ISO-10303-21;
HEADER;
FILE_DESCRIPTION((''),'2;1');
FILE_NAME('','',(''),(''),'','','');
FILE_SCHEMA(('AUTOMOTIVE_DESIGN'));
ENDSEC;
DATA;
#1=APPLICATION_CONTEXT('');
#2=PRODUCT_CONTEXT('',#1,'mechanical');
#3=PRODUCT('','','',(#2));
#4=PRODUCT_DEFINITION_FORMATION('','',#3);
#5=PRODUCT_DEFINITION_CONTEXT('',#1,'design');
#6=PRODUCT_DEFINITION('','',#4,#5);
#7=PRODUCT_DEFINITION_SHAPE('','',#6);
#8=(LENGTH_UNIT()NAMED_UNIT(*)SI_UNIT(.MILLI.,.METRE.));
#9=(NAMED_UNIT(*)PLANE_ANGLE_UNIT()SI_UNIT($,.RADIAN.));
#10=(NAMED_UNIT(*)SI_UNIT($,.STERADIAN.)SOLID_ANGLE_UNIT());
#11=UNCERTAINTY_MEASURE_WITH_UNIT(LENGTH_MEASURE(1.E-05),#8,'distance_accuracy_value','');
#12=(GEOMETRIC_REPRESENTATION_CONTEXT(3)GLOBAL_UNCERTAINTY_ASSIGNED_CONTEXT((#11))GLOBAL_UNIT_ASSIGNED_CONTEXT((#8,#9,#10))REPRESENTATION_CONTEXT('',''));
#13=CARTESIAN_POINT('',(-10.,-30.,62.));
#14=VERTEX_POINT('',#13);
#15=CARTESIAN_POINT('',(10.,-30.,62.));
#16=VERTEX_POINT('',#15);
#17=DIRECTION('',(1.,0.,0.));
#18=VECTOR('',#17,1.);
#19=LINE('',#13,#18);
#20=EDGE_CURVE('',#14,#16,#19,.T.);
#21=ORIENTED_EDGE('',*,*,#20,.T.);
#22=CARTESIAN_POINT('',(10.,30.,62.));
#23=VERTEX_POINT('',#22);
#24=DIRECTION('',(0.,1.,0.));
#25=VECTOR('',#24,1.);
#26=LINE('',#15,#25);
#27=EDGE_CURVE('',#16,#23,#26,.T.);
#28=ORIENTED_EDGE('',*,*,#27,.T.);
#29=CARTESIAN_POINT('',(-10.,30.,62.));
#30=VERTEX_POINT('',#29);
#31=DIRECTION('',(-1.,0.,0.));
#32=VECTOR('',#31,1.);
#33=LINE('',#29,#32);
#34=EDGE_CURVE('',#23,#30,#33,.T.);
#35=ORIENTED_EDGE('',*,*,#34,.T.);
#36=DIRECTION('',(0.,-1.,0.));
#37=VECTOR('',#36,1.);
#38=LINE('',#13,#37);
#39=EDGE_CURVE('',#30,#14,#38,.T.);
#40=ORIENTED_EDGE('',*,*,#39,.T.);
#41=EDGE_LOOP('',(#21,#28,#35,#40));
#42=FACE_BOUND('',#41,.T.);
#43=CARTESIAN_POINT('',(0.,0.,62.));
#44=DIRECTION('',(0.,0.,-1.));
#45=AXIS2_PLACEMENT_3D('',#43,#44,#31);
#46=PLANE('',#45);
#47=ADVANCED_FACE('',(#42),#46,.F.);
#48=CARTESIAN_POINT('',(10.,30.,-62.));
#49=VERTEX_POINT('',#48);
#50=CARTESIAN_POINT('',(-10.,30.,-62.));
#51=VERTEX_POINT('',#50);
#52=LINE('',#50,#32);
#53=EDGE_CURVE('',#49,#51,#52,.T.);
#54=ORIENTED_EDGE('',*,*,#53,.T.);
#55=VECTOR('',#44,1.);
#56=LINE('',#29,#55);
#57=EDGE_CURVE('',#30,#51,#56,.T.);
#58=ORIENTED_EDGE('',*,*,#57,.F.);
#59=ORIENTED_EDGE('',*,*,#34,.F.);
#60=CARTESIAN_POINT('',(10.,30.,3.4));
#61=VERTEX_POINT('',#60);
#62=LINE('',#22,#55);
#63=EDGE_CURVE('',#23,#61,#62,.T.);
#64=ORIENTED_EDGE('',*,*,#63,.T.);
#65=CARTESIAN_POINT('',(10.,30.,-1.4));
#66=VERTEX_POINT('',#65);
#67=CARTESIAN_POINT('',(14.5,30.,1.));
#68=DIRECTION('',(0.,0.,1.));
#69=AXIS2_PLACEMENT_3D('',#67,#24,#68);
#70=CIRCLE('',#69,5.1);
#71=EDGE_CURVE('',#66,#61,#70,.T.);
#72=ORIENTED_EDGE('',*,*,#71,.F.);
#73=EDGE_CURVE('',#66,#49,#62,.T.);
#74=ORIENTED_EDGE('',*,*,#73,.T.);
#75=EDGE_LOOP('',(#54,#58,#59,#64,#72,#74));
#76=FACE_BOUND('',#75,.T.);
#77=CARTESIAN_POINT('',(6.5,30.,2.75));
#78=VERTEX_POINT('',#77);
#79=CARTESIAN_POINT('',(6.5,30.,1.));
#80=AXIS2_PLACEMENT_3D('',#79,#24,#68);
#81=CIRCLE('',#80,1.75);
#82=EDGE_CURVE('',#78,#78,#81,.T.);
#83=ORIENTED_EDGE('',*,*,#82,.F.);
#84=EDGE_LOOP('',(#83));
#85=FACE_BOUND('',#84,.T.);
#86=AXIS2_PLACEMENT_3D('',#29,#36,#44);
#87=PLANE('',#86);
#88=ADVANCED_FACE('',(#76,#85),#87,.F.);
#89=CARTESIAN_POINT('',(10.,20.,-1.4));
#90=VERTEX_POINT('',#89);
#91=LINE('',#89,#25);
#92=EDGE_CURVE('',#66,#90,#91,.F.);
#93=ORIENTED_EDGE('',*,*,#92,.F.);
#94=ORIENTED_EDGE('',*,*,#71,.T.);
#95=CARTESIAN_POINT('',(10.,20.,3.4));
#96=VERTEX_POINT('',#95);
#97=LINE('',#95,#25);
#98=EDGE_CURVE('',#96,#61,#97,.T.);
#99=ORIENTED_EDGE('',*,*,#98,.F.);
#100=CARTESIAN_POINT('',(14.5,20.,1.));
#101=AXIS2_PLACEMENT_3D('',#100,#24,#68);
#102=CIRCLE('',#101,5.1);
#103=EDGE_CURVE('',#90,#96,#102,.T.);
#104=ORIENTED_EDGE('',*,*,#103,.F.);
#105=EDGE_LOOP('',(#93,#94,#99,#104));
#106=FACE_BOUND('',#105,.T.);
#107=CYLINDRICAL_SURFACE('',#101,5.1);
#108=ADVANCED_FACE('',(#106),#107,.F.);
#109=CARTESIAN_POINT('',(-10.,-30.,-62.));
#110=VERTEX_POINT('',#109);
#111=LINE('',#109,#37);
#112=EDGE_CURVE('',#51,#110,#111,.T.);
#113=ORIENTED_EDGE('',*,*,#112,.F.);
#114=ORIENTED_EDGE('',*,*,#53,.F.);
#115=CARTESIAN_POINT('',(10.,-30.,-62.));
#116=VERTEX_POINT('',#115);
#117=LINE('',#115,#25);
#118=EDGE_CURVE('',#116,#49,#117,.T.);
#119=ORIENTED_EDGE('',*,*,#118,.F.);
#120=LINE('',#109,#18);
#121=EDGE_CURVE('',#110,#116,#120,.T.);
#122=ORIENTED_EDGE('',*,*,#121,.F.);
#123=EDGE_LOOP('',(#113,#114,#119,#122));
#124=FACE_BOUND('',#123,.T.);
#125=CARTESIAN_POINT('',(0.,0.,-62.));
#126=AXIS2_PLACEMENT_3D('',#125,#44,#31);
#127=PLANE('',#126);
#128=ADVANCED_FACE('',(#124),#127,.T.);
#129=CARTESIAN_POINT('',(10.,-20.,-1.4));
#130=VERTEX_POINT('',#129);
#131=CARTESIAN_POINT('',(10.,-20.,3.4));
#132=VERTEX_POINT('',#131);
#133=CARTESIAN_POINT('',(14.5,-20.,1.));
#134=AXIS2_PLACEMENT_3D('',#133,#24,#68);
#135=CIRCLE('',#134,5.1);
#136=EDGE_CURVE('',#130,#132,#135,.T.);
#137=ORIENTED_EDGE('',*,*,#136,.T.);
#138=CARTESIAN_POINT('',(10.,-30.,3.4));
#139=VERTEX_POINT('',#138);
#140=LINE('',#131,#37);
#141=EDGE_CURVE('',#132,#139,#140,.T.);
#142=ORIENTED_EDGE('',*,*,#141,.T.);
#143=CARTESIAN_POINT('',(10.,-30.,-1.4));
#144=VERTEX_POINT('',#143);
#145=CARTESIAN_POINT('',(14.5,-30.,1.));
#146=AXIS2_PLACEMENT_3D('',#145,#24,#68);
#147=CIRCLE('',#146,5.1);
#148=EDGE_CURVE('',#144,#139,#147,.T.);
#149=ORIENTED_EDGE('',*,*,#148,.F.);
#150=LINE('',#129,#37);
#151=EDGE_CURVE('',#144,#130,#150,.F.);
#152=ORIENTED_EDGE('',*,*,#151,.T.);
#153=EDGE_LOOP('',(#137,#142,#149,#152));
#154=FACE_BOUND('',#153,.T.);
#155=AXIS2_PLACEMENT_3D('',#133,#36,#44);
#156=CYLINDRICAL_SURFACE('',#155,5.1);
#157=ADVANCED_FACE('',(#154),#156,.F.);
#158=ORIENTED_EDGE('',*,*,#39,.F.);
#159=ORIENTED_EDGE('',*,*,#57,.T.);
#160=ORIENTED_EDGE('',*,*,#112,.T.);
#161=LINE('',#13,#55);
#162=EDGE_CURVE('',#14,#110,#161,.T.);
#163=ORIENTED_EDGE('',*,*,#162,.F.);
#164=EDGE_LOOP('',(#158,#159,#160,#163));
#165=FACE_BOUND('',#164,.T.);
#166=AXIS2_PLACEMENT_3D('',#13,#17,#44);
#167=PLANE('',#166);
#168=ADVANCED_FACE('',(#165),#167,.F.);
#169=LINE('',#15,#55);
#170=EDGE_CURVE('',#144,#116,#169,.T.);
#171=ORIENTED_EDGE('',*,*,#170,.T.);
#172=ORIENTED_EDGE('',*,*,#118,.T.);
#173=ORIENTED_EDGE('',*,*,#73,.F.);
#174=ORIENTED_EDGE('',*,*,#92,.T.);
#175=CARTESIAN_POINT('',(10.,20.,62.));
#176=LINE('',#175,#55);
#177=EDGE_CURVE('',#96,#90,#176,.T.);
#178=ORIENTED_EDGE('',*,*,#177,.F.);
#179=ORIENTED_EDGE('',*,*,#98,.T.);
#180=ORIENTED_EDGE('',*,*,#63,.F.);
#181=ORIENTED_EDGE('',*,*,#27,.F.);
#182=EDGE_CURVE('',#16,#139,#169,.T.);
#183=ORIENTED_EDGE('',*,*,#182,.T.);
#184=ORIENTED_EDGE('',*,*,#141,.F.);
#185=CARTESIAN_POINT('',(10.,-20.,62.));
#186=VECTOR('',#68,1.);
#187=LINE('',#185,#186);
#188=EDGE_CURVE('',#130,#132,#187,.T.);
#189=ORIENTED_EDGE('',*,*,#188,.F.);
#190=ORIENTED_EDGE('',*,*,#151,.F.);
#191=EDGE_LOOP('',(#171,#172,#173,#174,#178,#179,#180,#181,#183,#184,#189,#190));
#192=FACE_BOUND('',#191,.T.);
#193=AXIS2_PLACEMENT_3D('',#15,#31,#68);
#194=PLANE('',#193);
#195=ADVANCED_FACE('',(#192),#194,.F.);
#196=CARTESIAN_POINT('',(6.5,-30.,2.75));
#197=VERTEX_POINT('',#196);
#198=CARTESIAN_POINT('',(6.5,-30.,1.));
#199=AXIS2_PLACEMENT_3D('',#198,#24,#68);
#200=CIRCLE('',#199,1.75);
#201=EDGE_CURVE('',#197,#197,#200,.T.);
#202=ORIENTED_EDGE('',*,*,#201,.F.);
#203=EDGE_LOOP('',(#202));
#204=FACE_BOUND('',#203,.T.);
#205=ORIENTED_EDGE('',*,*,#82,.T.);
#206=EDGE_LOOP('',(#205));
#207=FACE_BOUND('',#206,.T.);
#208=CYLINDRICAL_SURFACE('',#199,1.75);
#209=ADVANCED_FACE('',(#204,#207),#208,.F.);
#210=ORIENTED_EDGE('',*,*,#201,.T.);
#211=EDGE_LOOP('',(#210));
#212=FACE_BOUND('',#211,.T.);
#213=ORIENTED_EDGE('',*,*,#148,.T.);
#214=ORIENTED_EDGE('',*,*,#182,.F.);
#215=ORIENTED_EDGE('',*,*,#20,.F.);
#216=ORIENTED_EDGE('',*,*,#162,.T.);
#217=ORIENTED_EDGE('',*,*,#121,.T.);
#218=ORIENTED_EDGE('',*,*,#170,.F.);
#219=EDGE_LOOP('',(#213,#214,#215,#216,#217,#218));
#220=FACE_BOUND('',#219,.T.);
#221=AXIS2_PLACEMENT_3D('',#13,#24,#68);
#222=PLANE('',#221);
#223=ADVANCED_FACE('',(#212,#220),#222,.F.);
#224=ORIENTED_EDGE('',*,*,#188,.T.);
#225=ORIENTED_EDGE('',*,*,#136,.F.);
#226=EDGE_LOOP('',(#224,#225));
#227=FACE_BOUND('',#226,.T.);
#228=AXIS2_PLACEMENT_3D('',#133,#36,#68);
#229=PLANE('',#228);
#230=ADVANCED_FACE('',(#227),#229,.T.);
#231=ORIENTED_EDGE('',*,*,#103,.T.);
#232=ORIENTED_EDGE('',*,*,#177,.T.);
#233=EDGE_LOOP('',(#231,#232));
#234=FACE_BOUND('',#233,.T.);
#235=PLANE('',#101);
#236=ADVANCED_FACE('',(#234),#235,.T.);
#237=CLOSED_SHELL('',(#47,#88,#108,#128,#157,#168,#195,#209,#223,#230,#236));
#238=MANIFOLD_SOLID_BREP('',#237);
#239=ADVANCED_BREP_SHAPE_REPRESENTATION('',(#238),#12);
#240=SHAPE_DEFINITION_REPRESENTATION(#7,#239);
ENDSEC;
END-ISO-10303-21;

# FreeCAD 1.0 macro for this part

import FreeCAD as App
import Part
import Sketcher
from FreeCAD import Vector

doc = App.newDocument("Part")
body = doc.addObject("PartDesign::Body", "Body")

# Sketch on XY plane
sketch1 = doc.addObject("Sketcher::SketchObject", "Sketch")
body.addObject(sketch1)
sketch1.AttachmentSupport = (doc.XY_Plane, [""])
sketch1.MapMode = "FlatFace"
sketch1.addGeometry([
    Part.LineSegment(Vector(-10, 30, 0), Vector(-10, -30, 0)),
    Part.LineSegment(Vector(-10, -30, 0), Vector(10, -30, 0)),
    Part.LineSegment(Vector(10, -30, 0), Vector(10, 30, 0)),
    Part.LineSegment(Vector(10, 30, 0), Vector(-10, 30, 0)),
], False)
sketch1.addConstraint([
    Sketcher.Constraint("Coincident", 0, 2, 1, 1),
    Sketcher.Constraint("Coincident", 1, 2, 2, 1),
    Sketcher.Constraint("Coincident", 2, 2, 3, 1),
    Sketcher.Constraint("Coincident", 3, 2, 0, 1),
    Sketcher.Constraint("Vertical", 0),
    Sketcher.Constraint("Horizontal", 1),
    Sketcher.Constraint("Vertical", 2),
    Sketcher.Constraint("Horizontal", 3),
    Sketcher.Constraint("Symmetric", 0, 2, 2, 2, -1, 1),
    Sketcher.Constraint("DistanceX", 1, 1, 1, 2, 20.0),
    Sketcher.Constraint("DistanceY", 0, 2, 0, 1, 60.0),
])
pad1 = doc.addObject("PartDesign::Pad", "Pad")
body.addObject(pad1)
pad1.Profile = sketch1
pad1.Length = 124
pad1.Midplane = True

# Sketch on XZ plane
sketch2 = doc.addObject("Sketcher::SketchObject", "Sketch001")
body.addObject(sketch2)
sketch2.AttachmentSupport = (doc.XZ_Plane, [""])
sketch2.MapMode = "FlatFace"
sketch2.AttachmentOffset = App.Placement(Vector(0, 0, -30), App.Rotation())
sketch2.addGeometry(Part.Circle(Vector(14, 1, 0), Vector(0, 0, 1), 5), False)
sketch2.addConstraint([
    Sketcher.Constraint("Diameter", 0, 10.2),
    Sketcher.Constraint("DistanceY", -1, 1, 0, 3, 1.0),
    Sketcher.Constraint("DistanceX", -1, 1, 0, 3, 14.5),
])
pocket1 = doc.addObject("PartDesign::Pocket", "Pocket")
body.addObject(pocket1)
pocket1.Profile = sketch2
pocket1.Length = 10
pocket1.Reversed = True
doc.recompute()

mirrored = doc.addObject("PartDesign::Mirrored", "Mirrored")
body.addObject(mirrored)
mirrored.Originals = [pocket1]
mirrored.MirrorPlane = (doc.XZ_Plane, [""])
body.Tip = mirrored

# Sketch on XZ plane
sketch3 = doc.addObject("Sketcher::SketchObject", "Sketch002")
body.addObject(sketch3)
sketch3.AttachmentSupport = (doc.XZ_Plane, [""])
sketch3.MapMode = "FlatFace"
sketch3.AttachmentOffset = App.Placement(Vector(0, 0, -30), App.Rotation())
sketch3.addGeometry([
    Part.Circle(Vector(14.5, 1, 0), Vector(0, 0, 1), 4),  # 0
    Part.Circle(Vector(6.5, 1, 0), Vector(0, 0, 1), 1.8),  # 1
    Part.Circle(Vector(14.5, -7, 0), Vector(0, 0, 1), 1.8),  # 2
    Part.Circle(Vector(22.5, 1, 0), Vector(0, 0, 1), 1.8),  # 3
    Part.Circle(Vector(14.5, 9, 0), Vector(0, 0, 1), 1.8),  # 4
], False)
sketch3.addConstraint([
    Sketcher.Constraint("Equal", 1, 2),
    Sketcher.Constraint("Equal", 2, 3),
    Sketcher.Constraint("Equal", 3, 4),
    Sketcher.Constraint("Horizontal", 0, 3, 1, 3),
    Sketcher.Constraint("Horizontal", 1, 3, 3, 3),
    Sketcher.Constraint("Vertical", 0, 3, 2, 3),
    Sketcher.Constraint("Vertical", 2, 3, 4, 3),
    Sketcher.Constraint("Diameter", 0, 8.0),
    Sketcher.Constraint("Diameter", 1, 3.5),
    Sketcher.Constraint("DistanceY", -1, 1, 0, 3, 1.0),
    Sketcher.Constraint("DistanceY", 2, 3, -1, 1, 7.0),
    Sketcher.Constraint("DistanceY", -1, 1, 4, 3, 9.0),
    Sketcher.Constraint("DistanceX", 1, 3, 0, 3, 8.0),
    Sketcher.Constraint("DistanceX", 0, 3, 3, 3, 8.0),
    Sketcher.Constraint("DistanceX", -1, 1, 0, 3, 14.5),
])
pocket2 = doc.addObject("PartDesign::Pocket", "Pocket001")
body.addObject(pocket2)
pocket2.Profile = sketch3
pocket2.Type = "ThroughAll"
pocket2.Reversed = True

doc.recompute()
